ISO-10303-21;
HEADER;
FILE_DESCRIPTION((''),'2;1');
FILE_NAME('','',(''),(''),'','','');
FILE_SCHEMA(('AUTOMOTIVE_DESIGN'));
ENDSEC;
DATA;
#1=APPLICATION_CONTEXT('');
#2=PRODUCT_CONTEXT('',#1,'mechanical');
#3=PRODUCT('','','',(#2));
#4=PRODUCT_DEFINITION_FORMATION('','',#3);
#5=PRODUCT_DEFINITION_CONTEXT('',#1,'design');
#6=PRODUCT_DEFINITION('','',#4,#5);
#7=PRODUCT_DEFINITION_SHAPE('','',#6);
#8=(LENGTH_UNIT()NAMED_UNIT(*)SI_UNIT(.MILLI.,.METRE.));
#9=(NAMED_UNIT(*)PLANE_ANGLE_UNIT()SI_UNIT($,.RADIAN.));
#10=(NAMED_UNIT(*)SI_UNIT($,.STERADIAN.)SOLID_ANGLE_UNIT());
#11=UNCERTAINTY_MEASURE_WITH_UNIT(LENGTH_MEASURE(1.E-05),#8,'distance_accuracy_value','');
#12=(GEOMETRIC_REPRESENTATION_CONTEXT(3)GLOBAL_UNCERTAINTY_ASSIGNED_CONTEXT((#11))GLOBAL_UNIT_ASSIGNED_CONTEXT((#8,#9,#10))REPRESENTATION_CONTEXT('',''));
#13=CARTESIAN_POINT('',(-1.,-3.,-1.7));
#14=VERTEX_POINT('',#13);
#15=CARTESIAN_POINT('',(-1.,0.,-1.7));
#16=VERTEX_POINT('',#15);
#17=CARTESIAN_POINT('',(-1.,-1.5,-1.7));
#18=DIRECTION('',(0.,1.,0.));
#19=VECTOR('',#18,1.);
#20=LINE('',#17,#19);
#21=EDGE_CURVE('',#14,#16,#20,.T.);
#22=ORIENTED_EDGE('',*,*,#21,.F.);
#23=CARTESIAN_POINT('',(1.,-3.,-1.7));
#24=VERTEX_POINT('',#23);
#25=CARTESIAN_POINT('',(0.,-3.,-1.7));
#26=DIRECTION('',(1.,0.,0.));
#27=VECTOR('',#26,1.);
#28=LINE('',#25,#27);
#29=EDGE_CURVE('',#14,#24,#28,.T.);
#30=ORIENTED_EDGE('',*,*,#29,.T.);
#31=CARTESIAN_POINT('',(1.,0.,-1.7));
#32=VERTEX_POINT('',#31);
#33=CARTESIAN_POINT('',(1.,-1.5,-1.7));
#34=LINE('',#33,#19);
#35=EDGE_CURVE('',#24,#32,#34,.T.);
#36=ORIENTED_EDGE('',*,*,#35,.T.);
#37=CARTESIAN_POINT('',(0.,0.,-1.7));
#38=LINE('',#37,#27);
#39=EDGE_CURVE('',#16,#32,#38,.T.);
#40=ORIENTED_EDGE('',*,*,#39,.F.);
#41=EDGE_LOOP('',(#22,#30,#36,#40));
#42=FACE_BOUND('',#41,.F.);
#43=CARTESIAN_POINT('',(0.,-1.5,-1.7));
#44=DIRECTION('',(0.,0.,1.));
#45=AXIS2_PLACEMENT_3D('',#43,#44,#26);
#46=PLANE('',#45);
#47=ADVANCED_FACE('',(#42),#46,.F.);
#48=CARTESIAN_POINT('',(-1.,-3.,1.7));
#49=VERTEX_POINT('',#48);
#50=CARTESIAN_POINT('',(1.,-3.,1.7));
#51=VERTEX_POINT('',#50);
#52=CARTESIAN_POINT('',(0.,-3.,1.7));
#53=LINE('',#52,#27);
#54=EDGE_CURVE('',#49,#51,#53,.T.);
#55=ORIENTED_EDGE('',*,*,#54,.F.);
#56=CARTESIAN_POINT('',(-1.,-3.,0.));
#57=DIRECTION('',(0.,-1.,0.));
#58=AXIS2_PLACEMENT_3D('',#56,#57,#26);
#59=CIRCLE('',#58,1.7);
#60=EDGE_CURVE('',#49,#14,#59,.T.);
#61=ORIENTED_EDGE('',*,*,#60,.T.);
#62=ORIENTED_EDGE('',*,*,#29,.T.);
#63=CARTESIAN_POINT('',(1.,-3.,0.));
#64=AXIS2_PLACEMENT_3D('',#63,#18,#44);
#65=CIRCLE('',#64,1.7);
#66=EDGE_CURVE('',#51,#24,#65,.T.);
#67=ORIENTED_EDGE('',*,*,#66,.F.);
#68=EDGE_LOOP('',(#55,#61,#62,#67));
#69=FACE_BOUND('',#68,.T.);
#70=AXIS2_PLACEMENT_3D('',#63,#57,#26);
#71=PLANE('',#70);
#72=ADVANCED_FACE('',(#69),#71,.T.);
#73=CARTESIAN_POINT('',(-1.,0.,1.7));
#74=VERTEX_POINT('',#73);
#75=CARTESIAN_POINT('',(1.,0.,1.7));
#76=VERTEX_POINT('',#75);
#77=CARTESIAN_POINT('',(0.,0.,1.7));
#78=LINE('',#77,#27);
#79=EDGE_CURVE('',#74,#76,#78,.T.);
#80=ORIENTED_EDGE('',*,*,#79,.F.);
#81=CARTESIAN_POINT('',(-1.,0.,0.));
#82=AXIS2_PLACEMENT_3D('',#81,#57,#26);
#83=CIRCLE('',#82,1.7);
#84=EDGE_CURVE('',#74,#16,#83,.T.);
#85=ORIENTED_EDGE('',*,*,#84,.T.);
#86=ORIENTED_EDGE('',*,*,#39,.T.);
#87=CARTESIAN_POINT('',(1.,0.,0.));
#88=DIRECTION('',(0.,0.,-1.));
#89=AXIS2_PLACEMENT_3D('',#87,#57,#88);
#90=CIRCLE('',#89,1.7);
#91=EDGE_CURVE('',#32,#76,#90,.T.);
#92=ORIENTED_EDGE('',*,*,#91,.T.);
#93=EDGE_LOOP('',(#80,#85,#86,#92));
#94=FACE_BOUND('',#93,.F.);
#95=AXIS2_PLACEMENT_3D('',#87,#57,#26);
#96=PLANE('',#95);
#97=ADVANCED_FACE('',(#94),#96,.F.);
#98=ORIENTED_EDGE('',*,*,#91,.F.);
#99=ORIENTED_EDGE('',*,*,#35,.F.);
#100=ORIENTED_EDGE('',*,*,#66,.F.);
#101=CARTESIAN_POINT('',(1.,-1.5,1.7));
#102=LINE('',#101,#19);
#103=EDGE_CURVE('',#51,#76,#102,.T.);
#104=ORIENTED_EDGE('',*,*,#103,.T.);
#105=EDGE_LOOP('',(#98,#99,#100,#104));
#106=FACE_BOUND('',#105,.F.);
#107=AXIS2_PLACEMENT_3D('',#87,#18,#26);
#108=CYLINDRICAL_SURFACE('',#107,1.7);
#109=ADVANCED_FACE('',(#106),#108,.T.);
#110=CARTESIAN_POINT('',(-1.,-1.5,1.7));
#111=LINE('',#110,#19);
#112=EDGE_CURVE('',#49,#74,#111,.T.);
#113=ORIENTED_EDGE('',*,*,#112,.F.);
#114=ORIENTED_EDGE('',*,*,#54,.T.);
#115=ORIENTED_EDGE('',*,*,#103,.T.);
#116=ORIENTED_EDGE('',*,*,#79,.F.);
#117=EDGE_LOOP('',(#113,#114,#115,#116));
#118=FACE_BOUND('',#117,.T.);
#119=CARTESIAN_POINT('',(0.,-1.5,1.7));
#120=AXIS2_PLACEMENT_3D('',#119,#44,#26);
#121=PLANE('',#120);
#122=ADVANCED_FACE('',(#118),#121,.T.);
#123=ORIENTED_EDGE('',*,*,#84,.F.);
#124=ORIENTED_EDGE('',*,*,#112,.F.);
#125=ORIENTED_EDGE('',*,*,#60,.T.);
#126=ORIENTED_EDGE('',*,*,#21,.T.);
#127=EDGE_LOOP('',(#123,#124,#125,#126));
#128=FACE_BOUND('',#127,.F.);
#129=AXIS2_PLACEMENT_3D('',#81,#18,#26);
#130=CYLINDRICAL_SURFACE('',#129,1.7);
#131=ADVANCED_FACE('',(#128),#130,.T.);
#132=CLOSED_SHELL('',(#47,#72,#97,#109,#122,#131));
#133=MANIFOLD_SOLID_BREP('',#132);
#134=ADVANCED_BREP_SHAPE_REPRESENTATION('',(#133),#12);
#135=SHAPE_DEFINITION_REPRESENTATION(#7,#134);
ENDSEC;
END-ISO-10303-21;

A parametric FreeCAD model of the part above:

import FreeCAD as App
import Part
import Sketcher

V = App.Vector

doc = App.newDocument("Part")
body = doc.addObject("PartDesign::Body", "Body")

sketch1 = body.newObject("Sketcher::SketchObject", "Sketch")
sketch1.AttachmentSupport = (doc.getObject("XZ_Plane"), [""])
sketch1.MapMode = "FlatFace"
sketch1.addGeometry(Part.Circle(V(-1, 0, 0), V(0, 0, 1), 1.7), False)
sketch1.addConstraint(Sketcher.Constraint("PointOnObject", 0, 3, -1))
sketch1.addConstraint(Sketcher.Constraint("Diameter", 0, 3.4))
sketch1.addConstraint(Sketcher.Constraint("DistanceX", 0, 3, -1, 1, 1.0))
pad1 = body.newObject("PartDesign::Pad", "Pad")
pad1.Profile = sketch1
pad1.Length = 3
body2 = doc.addObject("PartDesign::Body", "Body001")

sketch2 = body2.newObject("Sketcher::SketchObject", "Sketch001")
sketch2.AttachmentSupport = (doc.getObject("XZ_Plane001"), [""])
sketch2.MapMode = "FlatFace"
sketch2.addGeometry(Part.Circle(V(1, 0, 0), V(0, 0, 1), 1.7), False)
sketch2.addConstraint(Sketcher.Constraint("PointOnObject", 0, 3, -1))
sketch2.addConstraint(Sketcher.Constraint("Diameter", 0, 3.4))
sketch2.addConstraint(Sketcher.Constraint("DistanceX", -1, 1, 0, 3, 1.0))
pad2 = body2.newObject("PartDesign::Pad", "Pad001")
pad2.Profile = sketch2
pad2.Length = 3
body3 = doc.addObject("PartDesign::Body", "Body002")

sketch3 = body3.newObject("Sketcher::SketchObject", "Sketch002")
sketch3.AttachmentSupport = (doc.getObject("XY_Plane002"), [""])
sketch3.MapMode = "FlatFace"
sketch3.AttachmentOffset = App.Placement(V(0, 0, -1.7), App.Rotation())
sketch3.addGeometry(Part.LineSegment(V(-1, 0, 0), V(-1, -3, 0)), False)
sketch3.addGeometry(Part.LineSegment(V(-1, -3, 0), V(1, -3, 0)), False)
sketch3.addGeometry(Part.LineSegment(V(1, -3, 0), V(1, 0, 0)), False)
sketch3.addGeometry(Part.LineSegment(V(1, 0, 0), V(-1, 0, 0)), False)
sketch3.addConstraint(Sketcher.Constraint("Coincident", 0, 2, 1, 1))
sketch3.addConstraint(Sketcher.Constraint("Coincident", 1, 2, 2, 1))
sketch3.addConstraint(Sketcher.Constraint("Coincident", 2, 2, 3, 1))
sketch3.addConstraint(Sketcher.Constraint("Coincident", 3, 2, 0, 1))
sketch3.addConstraint(Sketcher.Constraint("Vertical", 0))
sketch3.addConstraint(Sketcher.Constraint("Horizontal", 1))
sketch3.addConstraint(Sketcher.Constraint("Vertical", 2))
sketch3.addConstraint(Sketcher.Constraint("Horizontal", 3))
sketch3.addConstraint(Sketcher.Constraint("Symmetric", 2, 2, 3, 2, -1, 1))
sketch3.addConstraint(Sketcher.Constraint("DistanceX", 1, 1, 1, 2, 2.0))
sketch3.addConstraint(Sketcher.Constraint("DistanceY", 0, 2, 0, 1, 3.0))
pad3 = body3.newObject("PartDesign::Pad", "Pad002")
pad3.Profile = sketch3
pad3.Length = 3.4
doc.recompute()

boolean = body3.newObject("PartDesign::Boolean", "Boolean")
boolean.Type = "Fuse"
boolean.addObjects([body])
doc.recompute()

boolean2 = body3.newObject("PartDesign::Boolean", "Boolean001")
boolean2.Type = "Fuse"
boolean2.addObjects([body2])

doc.recompute()
